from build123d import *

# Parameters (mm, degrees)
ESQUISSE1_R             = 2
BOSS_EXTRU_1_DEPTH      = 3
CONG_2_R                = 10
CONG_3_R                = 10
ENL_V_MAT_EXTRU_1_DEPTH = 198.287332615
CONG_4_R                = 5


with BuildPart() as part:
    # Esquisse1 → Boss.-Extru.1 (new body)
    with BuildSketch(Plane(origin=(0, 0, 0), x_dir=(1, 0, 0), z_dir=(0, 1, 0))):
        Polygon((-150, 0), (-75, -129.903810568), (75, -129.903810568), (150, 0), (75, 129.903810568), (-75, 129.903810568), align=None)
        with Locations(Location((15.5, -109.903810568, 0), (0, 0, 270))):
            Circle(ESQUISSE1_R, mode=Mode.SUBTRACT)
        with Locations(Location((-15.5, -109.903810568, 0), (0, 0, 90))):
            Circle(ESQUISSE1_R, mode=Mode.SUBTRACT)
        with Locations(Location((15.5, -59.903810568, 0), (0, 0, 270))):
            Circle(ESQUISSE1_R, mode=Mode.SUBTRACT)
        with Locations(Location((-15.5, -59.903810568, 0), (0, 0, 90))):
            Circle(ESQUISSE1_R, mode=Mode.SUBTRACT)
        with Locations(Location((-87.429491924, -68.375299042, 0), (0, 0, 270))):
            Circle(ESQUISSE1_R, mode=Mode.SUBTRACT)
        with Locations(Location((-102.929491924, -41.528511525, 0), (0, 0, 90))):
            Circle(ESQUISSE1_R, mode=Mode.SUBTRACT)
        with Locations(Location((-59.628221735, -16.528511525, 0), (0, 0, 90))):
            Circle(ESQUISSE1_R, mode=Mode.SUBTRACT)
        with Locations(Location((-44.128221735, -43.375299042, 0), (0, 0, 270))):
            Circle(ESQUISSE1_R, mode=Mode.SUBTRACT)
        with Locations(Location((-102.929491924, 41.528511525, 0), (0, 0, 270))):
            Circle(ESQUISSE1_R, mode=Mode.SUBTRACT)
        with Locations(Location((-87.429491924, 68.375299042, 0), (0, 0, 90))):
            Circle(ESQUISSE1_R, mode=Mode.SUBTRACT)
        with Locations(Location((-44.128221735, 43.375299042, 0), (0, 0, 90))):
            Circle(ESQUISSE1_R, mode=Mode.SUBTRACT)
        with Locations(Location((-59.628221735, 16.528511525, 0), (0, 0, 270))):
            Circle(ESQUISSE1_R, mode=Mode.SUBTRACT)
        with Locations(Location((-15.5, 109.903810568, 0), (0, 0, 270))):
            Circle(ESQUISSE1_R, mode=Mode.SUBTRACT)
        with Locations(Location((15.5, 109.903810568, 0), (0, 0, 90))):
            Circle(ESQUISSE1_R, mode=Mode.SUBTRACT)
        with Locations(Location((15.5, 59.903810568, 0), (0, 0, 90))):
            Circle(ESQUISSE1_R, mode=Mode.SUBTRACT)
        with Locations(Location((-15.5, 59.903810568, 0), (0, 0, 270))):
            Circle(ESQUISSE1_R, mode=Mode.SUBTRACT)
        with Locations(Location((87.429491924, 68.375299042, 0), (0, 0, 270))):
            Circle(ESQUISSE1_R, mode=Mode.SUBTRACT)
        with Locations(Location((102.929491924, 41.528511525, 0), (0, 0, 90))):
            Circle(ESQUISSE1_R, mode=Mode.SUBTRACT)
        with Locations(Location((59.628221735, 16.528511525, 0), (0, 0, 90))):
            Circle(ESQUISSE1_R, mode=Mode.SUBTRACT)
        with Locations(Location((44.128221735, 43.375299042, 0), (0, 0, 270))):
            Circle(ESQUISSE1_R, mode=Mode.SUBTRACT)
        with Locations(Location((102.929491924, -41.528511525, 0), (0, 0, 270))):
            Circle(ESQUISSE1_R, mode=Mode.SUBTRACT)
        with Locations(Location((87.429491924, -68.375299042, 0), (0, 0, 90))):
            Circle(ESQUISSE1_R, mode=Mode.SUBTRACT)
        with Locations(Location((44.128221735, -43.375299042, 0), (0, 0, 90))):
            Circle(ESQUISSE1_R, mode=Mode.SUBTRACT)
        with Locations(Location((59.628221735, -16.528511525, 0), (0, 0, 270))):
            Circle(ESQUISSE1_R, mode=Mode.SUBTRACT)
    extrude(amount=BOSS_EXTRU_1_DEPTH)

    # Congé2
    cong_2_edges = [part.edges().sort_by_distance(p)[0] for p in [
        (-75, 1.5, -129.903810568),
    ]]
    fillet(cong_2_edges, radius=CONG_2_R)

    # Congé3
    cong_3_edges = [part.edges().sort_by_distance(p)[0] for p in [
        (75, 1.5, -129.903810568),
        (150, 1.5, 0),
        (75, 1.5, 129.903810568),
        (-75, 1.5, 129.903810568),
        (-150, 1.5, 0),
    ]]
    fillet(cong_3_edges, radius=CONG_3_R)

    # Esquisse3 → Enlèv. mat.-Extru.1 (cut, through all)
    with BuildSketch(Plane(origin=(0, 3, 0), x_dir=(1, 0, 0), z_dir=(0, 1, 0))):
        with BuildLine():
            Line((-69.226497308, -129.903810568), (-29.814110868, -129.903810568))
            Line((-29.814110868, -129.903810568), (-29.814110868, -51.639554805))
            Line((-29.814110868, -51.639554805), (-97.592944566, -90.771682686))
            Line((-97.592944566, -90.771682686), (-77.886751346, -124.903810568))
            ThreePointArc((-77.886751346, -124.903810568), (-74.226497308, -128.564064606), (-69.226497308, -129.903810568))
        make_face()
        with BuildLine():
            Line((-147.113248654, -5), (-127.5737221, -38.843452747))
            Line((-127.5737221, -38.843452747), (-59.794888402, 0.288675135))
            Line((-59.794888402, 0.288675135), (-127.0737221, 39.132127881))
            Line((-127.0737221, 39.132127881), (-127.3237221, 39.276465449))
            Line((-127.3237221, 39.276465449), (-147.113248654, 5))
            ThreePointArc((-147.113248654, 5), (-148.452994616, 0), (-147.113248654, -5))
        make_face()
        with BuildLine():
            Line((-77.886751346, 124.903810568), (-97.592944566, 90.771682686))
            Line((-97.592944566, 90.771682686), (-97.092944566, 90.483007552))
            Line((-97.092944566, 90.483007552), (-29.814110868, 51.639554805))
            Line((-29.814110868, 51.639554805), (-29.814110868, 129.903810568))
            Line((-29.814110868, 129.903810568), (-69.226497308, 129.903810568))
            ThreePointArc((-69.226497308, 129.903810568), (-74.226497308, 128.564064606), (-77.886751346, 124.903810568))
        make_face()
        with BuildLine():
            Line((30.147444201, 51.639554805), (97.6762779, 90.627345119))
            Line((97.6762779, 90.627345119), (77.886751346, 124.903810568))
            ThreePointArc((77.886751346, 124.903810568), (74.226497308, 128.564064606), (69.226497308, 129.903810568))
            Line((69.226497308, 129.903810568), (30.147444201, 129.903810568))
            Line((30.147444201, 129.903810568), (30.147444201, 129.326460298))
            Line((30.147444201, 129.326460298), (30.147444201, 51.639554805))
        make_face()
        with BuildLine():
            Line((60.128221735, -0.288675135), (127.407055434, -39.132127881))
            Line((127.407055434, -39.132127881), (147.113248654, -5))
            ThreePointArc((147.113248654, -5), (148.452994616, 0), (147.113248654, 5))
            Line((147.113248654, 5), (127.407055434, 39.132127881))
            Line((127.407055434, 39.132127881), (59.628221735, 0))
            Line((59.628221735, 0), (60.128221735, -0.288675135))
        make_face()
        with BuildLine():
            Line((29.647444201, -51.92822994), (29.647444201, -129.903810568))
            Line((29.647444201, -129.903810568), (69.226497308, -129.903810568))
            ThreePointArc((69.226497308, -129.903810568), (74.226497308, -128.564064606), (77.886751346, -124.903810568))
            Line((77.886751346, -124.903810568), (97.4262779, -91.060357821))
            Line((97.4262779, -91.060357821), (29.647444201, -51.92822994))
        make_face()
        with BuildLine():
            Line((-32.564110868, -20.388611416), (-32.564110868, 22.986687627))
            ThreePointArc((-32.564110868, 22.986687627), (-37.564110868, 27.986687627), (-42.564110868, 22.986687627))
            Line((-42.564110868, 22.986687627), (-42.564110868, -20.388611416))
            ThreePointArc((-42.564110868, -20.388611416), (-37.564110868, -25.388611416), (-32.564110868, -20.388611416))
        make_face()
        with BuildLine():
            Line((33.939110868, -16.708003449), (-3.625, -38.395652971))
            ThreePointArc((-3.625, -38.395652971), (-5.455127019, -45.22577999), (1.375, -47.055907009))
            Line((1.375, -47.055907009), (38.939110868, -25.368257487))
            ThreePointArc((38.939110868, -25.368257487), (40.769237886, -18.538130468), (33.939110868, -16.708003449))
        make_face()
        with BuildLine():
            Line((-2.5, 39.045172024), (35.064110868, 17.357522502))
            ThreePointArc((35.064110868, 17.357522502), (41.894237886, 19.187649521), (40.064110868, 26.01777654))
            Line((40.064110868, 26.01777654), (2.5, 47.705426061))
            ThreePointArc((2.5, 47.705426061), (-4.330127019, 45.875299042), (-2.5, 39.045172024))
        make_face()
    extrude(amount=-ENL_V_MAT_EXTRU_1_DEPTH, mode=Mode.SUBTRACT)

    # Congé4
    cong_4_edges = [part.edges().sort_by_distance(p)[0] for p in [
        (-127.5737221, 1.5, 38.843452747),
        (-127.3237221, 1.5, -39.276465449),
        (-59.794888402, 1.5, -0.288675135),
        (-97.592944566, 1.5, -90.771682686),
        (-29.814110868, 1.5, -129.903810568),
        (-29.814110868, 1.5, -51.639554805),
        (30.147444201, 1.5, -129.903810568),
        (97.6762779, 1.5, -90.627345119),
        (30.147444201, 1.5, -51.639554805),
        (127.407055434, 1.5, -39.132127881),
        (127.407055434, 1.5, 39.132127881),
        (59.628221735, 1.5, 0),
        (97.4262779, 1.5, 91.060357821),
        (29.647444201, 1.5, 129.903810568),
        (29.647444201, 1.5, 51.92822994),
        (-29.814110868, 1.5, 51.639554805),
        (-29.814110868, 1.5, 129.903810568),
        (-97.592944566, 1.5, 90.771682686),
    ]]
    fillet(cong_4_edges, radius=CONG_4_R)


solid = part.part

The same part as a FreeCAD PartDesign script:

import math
import FreeCAD as App
import Part
import Sketcher
from FreeCAD import Vector
Q = App.Units.Quantity


def edges_at(feature, points):
    """Names of the edges that pass closest to the given points."""
    edges = feature.Shape.Edges
    near = lambda p: min(range(len(edges)), key=lambda i: edges[i].distToShape(Part.Vertex(*p))[0])
    return sorted({f"Edge{near(p) + 1}" for p in points})


def add_polygon(sketch, points):
    """Adds a closed chain of lines whose ends are joined by coincident constraints."""
    first, n = sketch.GeometryCount, len(points)
    for a, b in zip(points, points[1:] + points[:1]):
        sketch.addGeometry(Part.LineSegment(App.Vector(*a, 0), App.Vector(*b, 0)), False)
    for i in range(n):
        sketch.addConstraint(Sketcher.Constraint("Coincident", first + i, 2, first + (i + 1) % n, 1))

doc = App.newDocument("Part")
body = doc.addObject("PartDesign::Body", "Body")

sketch1 = doc.addObject("Sketcher::SketchObject", "Sketch")
body.addObject(sketch1)
sketch1.AttachmentSupport = (doc.XZ_Plane, [""])
sketch1.MapMode = "FlatFace"
add_polygon(sketch1, [(-150, 0), (-75, 129.9), (75, 129.9), (150, 0), (75, -129.9), (-75, -129.9)])
sketch1.addGeometry(Part.Circle(Vector(-87.4, 68.4, 0), Vector(0, 0, 1), 2), False)
sketch1.addGeometry(Part.Circle(Vector(-15.5, 109.9, 0), Vector(0, 0, 1), 2), False)
sketch1.addGeometry(Part.Circle(Vector(-15.5, 59.9, 0), Vector(0, 0, 1), 2), False)
sketch1.addGeometry(Part.Circle(Vector(-102.9, 41.5, 0), Vector(0, 0, 1), 2), False)
sketch1.addGeometry(Part.Circle(Vector(-59.6, 16.5, 0), Vector(0, 0, 1), 2), False)
sketch1.addGeometry(Part.Circle(Vector(-44.1, 43.4, 0), Vector(0, 0, 1), 2), False)
sketch1.addGeometry(Part.Circle(Vector(15.5, 109.9, 0), Vector(0, 0, 1), 2), False)
sketch1.addGeometry(Part.Circle(Vector(15.5, 59.9, 0), Vector(0, 0, 1), 2), False)
sketch1.addGeometry(Part.Circle(Vector(87.4, 68.4, 0), Vector(0, 0, 1), 2), False)
sketch1.addGeometry(Part.Circle(Vector(44.1, 43.4, 0), Vector(0, 0, 1), 2), False)
sketch1.addGeometry(Part.Circle(Vector(102.9, 41.5, 0), Vector(0, 0, 1), 2), False)
sketch1.addGeometry(Part.Circle(Vector(59.6, 16.5, 0), Vector(0, 0, 1), 2), False)
sketch1.addGeometry(Part.Circle(Vector(-59.6, -16.5, 0), Vector(0, 0, 1), 2), False)
sketch1.addGeometry(Part.Circle(Vector(-102.9, -41.5, 0), Vector(0, 0, 1), 2), False)
sketch1.addGeometry(Part.Circle(Vector(-44.1, -43.4, 0), Vector(0, 0, 1), 2), False)
sketch1.addGeometry(Part.Circle(Vector(-87.4, -68.4, 0), Vector(0, 0, 1), 2), False)
sketch1.addGeometry(Part.Circle(Vector(-15.5, -59.9, 0), Vector(0, 0, 1), 2), False)
sketch1.addGeometry(Part.Circle(Vector(-15.5, -109.9, 0), Vector(0, 0, 1), 2), False)
sketch1.addGeometry(Part.Circle(Vector(44.1, -43.4, 0), Vector(0, 0, 1), 2), False)
sketch1.addGeometry(Part.Circle(Vector(59.6, -16.5, 0), Vector(0, 0, 1), 2), False)
sketch1.addGeometry(Part.Circle(Vector(102.9, -41.5, 0), Vector(0, 0, 1), 2), False)
sketch1.addGeometry(Part.Circle(Vector(15.5, -59.9, 0), Vector(0, 0, 1), 2), False)
sketch1.addGeometry(Part.Circle(Vector(15.5, -109.9, 0), Vector(0, 0, 1), 2), False)
sketch1.addGeometry(Part.Circle(Vector(87.4, -68.4, 0), Vector(0, 0, 1), 2), False)
sketch1.addConstraint([
    Sketcher.Constraint("Horizontal", 1),
    Sketcher.Constraint("Horizontal", 4),
    Sketcher.Constraint("Equal", 6, 7),
    Sketcher.Constraint("Equal", 7, 8),
    Sketcher.Constraint("Equal", 8, 9),
    Sketcher.Constraint("Equal", 9, 10),
    Sketcher.Constraint("Equal", 10, 11),
    Sketcher.Constraint("Equal", 11, 12),
    Sketcher.Constraint("Equal", 12, 13),
    Sketcher.Constraint("Equal", 13, 14),
    Sketcher.Constraint("Equal", 14, 15),
    Sketcher.Constraint("Equal", 15, 16),
    Sketcher.Constraint("Equal", 16, 17),
    Sketcher.Constraint("Equal", 17, 18),
    Sketcher.Constraint("Equal", 18, 19),
    Sketcher.Constraint("Equal", 19, 20),
    Sketcher.Constraint("Equal", 20, 21),
    Sketcher.Constraint("Equal", 21, 22),
    Sketcher.Constraint("Equal", 22, 23),
    Sketcher.Constraint("Equal", 23, 24),
    Sketcher.Constraint("Equal", 24, 25),
    Sketcher.Constraint("Equal", 25, 26),
    Sketcher.Constraint("Equal", 26, 27),
    Sketcher.Constraint("Equal", 27, 28),
    Sketcher.Constraint("Equal", 28, 29),
    Sketcher.Constraint("Symmetric", 17, 3, 18, 3, -1, 1),
    Sketcher.Constraint("Symmetric", 16, 3, 19, 3, -1, 1),
    Sketcher.Constraint("Symmetric", 15, 3, 20, 3, -1, 1),
    Sketcher.Constraint("Symmetric", 14, 3, 21, 3, -1, 1),
    Sketcher.Constraint("Symmetric", 13, 3, 22, 3, -1, 1),
    Sketcher.Constraint("Symmetric", 12, 3, 23, 3, -1, 1),
    Sketcher.Constraint("Symmetric", 11, 3, 24, 3, -1, 1),
    Sketcher.Constraint("Symmetric", 10, 3, 25, 3, -1, 1),
    Sketcher.Constraint("Symmetric", 9, 3, 26, 3, -1, 1),
    Sketcher.Constraint("Symmetric", 8, 3, 27, 3, -1, 1),
    Sketcher.Constraint("Symmetric", 7, 3, 28, 3, -1, 1),
    Sketcher.Constraint("Symmetric", 6, 3, 29, 3, -1, 1),
    Sketcher.Constraint("Symmetric", 0, 2, 3, 2, -1, 1),
    Sketcher.Constraint("Symmetric", 2, 2, 5, 2, -1, 1),
    Sketcher.Constraint("Symmetric", 7, 3, 12, 3, -2),
    Sketcher.Constraint("Symmetric", 8, 3, 13, 3, -2),
    Sketcher.Constraint("Symmetric", 6, 3, 14, 3, -2),
    Sketcher.Constraint("Symmetric", 11, 3, 15, 3, -2),
    Sketcher.Constraint("Symmetric", 9, 3, 16, 3, -2),
    Sketcher.Constraint("Symmetric", 10, 3, 17, 3, -2),
    Sketcher.Constraint("PointOnObject", 2, 2, -1),
    Sketcher.Constraint("Parallel", 2, 5),
    Sketcher.Constraint("Vertical", 7, 3, 8, 3),
    Sketcher.Constraint("Vertical", 1, 2, 3, 2),
    Sketcher.Constraint("Diameter", 6, 4.0),
    Sketcher.Constraint("DistanceX", 1, 1, 1, 2, 150.0),
    Sketcher.Constraint("Angle", 0, Q("60 deg")),
    Sketcher.Constraint("Distance", 0, 150.0),
    Sketcher.Constraint("DistanceY", 8, 3, 7, 3, 50.0),
    Sketcher.Constraint("DistanceY", 10, 3, 9, 3, 25.0),
    Sketcher.Constraint("DistanceY", 11, 3, 6, 3, 25.0),
    Sketcher.Constraint("DistanceX", 7, 3, 12, 3, 31.0),
    Sketcher.Constraint("DistanceY", 7, 3, 0, 2, 20.0),
    Sketcher.Constraint("DistanceX", 9, 3, 6, 3, 15.5),
    Sketcher.Constraint("DistanceX", 10, 3, 11, 3, 15.5),
    Sketcher.Constraint("DistanceY", -1, 1, 6, 3, 68.375299),
    Sketcher.Constraint("DistanceY", 9, 3, 8, 3, 18.375299),
    Sketcher.Constraint("DistanceX", 6, 3, -1, 1, 87.429492),
    Sketcher.Constraint("DistanceX", 10, 3, -1, 1, 59.628222),
])
pad1 = doc.addObject("PartDesign::Pad", "Pad")
body.addObject(pad1)
pad1.Profile = sketch1
pad1.Length = 3
pad1.Reversed = True
doc.recompute()

fillet = doc.addObject("PartDesign::Fillet", "Fillet")
body.addObject(fillet)
fillet.Base = (pad1, edges_at(pad1, [(-75, 1.5, -129.904)]))
fillet.Radius = 10
doc.recompute()

fillet2 = doc.addObject("PartDesign::Fillet", "Fillet001")
body.addObject(fillet2)
fillet2.Base = (fillet, edges_at(fillet, [
    (75, 1.5, -129.904),
    (150, 1.5, 0),
    (75, 1.5, 129.904),
    (-75, 1.5, 129.904),
    (-150, 1.5, 0),
]))
fillet2.Radius = 10

sketch2 = doc.addObject("Sketcher::SketchObject", "Sketch001")
body.addObject(sketch2)
sketch2.AttachmentSupport = (doc.XZ_Plane, [""])
sketch2.MapMode = "FlatFace"
sketch2.AttachmentOffset = App.Placement(Vector(0, 0, -3), App.Rotation())
sketch2.addGeometry([
    Part.LineSegment(Vector(-69.23, 129.9, 0), Vector(-29.81, 129.9, 0)),
    Part.LineSegment(Vector(-29.81, 129.9, 0), Vector(-29.81, 51.64, 0)),
    Part.LineSegment(Vector(-29.81, 51.64, 0), Vector(-97.59, 90.77, 0)),
    Part.LineSegment(Vector(-97.59, 90.77, 0), Vector(-77.89, 124.9, 0)),
    Part.ArcOfCircle(Part.Circle(Vector(-69.23, 119.9, 0), Vector(0, 0, 1), 10), math.radians(90), math.radians(150)),
    Part.LineSegment(Vector(-147.11, 5, 0), Vector(-127.57, 38.84, 0)),
    Part.LineSegment(Vector(-127.57, 38.84, 0), Vector(-59.79, -0.29, 0)),
    Part.LineSegment(Vector(-59.79, -0.29, 0), Vector(-127.07, -39.13, 0)),
    Part.LineSegment(Vector(-127.07, -39.13, 0), Vector(-127.32, -39.28, 0)),
    Part.LineSegment(Vector(-127.32, -39.28, 0), Vector(-147.11, -5, 0)),
    Part.ArcOfCircle(Part.Circle(Vector(-138.45, 0, 0), Vector(0, 0, 1), 10), math.radians(150), math.radians(210)),
    Part.LineSegment(Vector(-77.89, -124.9, 0), Vector(-97.59, -90.77, 0)),
    Part.LineSegment(Vector(-97.59, -90.77, 0), Vector(-97.09, -90.48, 0)),
    Part.LineSegment(Vector(-97.09, -90.48, 0), Vector(-29.81, -51.64, 0)),
    Part.LineSegment(Vector(-29.81, -51.64, 0), Vector(-29.81, -129.9, 0)),
    Part.LineSegment(Vector(-29.81, -129.9, 0), Vector(-69.23, -129.9, 0)),
    Part.ArcOfCircle(Part.Circle(Vector(-69.23, -119.9, 0), Vector(0, 0, 1), 10), math.radians(-150), math.radians(-90)),
    Part.LineSegment(Vector(30.15, -51.64, 0), Vector(97.68, -90.63, 0)),
    Part.LineSegment(Vector(97.68, -90.63, 0), Vector(77.89, -124.9, 0)),
    Part.ArcOfCircle(Part.Circle(Vector(69.23, -119.9, 0), Vector(0, 0, 1), 10), math.radians(-90), math.radians(-30)),
    Part.LineSegment(Vector(69.23, -129.9, 0), Vector(30.15, -129.9, 0)),
    Part.LineSegment(Vector(30.15, -129.9, 0), Vector(30.15, -51.64, 0)),
    Part.LineSegment(Vector(60.13, 0.29, 0), Vector(127.41, 39.13, 0)),
    Part.LineSegment(Vector(127.41, 39.13, 0), Vector(147.11, 5, 0)),
    Part.ArcOfCircle(Part.Circle(Vector(138.45, 0, 0), Vector(0, 0, 1), 10), math.radians(-30), math.radians(30)),
    Part.LineSegment(Vector(147.11, -5, 0), Vector(127.41, -39.13, 0)),
    Part.LineSegment(Vector(127.41, -39.13, 0), Vector(59.63, 0, 0)),
    Part.LineSegment(Vector(59.63, 0, 0), Vector(60.13, 0.29, 0)),
    Part.LineSegment(Vector(29.65, 51.93, 0), Vector(29.65, 129.9, 0)),
    Part.LineSegment(Vector(29.65, 129.9, 0), Vector(69.23, 129.9, 0)),
    Part.ArcOfCircle(Part.Circle(Vector(69.23, 119.9, 0), Vector(0, 0, 1), 10), math.radians(30), math.radians(90)),
    Part.LineSegment(Vector(77.89, 124.9, 0), Vector(97.43, 91.06, 0)),
    Part.LineSegment(Vector(97.43, 91.06, 0), Vector(29.65, 51.93, 0)),
    Part.LineSegment(Vector(-32.56, 20.39, 0), Vector(-32.56, -22.99, 0)),
    Part.ArcOfCircle(Part.Circle(Vector(-37.56, -22.99, 0), Vector(0, 0, 1), 5), math.radians(180), math.radians(360)),
    Part.LineSegment(Vector(-42.56, -22.99, 0), Vector(-42.56, 20.39, 0)),
    Part.ArcOfCircle(Part.Circle(Vector(-37.56, 20.39, 0), Vector(0, 0, 1), 5), math.radians(0), math.radians(180)),
    Part.LineSegment(Vector(33.94, 16.71, 0), Vector(-3.62, 38.4, 0)),
    Part.ArcOfCircle(Part.Circle(Vector(-1.12, 42.73, 0), Vector(0, 0, 1), 5), math.radians(60), math.radians(240)),
    Part.LineSegment(Vector(1.38, 47.06, 0), Vector(38.94, 25.37, 0)),
    Part.ArcOfCircle(Part.Circle(Vector(36.44, 21.04, 0), Vector(0, 0, 1), 5), math.radians(-120), math.radians(60)),
    Part.LineSegment(Vector(-2.5, -39.05, 0), Vector(35.06, -17.36, 0)),
    Part.ArcOfCircle(Part.Circle(Vector(37.56, -21.69, 0), Vector(0, 0, 1), 5), math.radians(-60), math.radians(120)),
    Part.LineSegment(Vector(40.06, -26.02, 0), Vector(2.5, -47.71, 0)),
    Part.ArcOfCircle(Part.Circle(Vector(0, -43.38, 0), Vector(0, 0, 1), 5), math.radians(120), math.radians(300)),
], False)
sketch2.addConstraint([
    Sketcher.Constraint("Coincident", 0, 2, 1, 1),
    Sketcher.Constraint("Coincident", 1, 2, 2, 1),
    Sketcher.Constraint("Coincident", 2, 2, 3, 1),
    Sketcher.Constraint("Tangent", 3, 2, 4, 2),
    Sketcher.Constraint("Tangent", 4, 1, 0, 1),
    Sketcher.Constraint("Coincident", 5, 2, 6, 1),
    Sketcher.Constraint("Coincident", 6, 2, 7, 1),
    Sketcher.Constraint("Coincident", 7, 2, 8, 1),
    Sketcher.Constraint("Coincident", 8, 2, 9, 1),
    Sketcher.Constraint("Tangent", 9, 2, 10, 2),
    Sketcher.Constraint("Tangent", 10, 1, 5, 1),
    Sketcher.Constraint("Coincident", 11, 2, 12, 1),
    Sketcher.Constraint("Coincident", 12, 2, 13, 1),
    Sketcher.Constraint("Coincident", 13, 2, 14, 1),
    Sketcher.Constraint("Coincident", 14, 2, 15, 1),
    Sketcher.Constraint("Tangent", 15, 2, 16, 2),
    Sketcher.Constraint("Tangent", 16, 1, 11, 1),
    Sketcher.Constraint("Coincident", 17, 2, 18, 1),
    Sketcher.Constraint("Tangent", 18, 2, 19, 2),
    Sketcher.Constraint("Tangent", 19, 1, 20, 1),
    Sketcher.Constraint("Coincident", 20, 2, 21, 1),
    Sketcher.Constraint("Coincident", 21, 2, 17, 1),
    Sketcher.Constraint("Coincident", 22, 2, 23, 1),
    Sketcher.Constraint("Tangent", 23, 2, 24, 2),
    Sketcher.Constraint("Tangent", 24, 1, 25, 1),
    Sketcher.Constraint("Coincident", 25, 2, 26, 1),
    Sketcher.Constraint("Coincident", 26, 2, 27, 1),
    Sketcher.Constraint("Coincident", 27, 2, 22, 1),
    Sketcher.Constraint("Coincident", 28, 2, 29, 1),
    Sketcher.Constraint("Tangent", 29, 2, 30, 2),
    Sketcher.Constraint("Tangent", 30, 1, 31, 1),
    Sketcher.Constraint("Coincident", 31, 2, 32, 1),
    Sketcher.Constraint("Coincident", 32, 2, 28, 1),
    Sketcher.Constraint("Tangent", 33, 2, 34, 2),
    Sketcher.Constraint("Tangent", 34, 1, 35, 1),
    Sketcher.Constraint("Tangent", 35, 2, 36, 2),
    Sketcher.Constraint("Tangent", 36, 1, 33, 1),
    Sketcher.Constraint("Tangent", 37, 2, 38, 2),
    Sketcher.Constraint("Tangent", 38, 1, 39, 1),
    Sketcher.Constraint("Tangent", 39, 2, 40, 2),
    Sketcher.Constraint("Tangent", 40, 1, 37, 1),
    Sketcher.Constraint("Tangent", 41, 2, 42, 2),
    Sketcher.Constraint("Tangent", 42, 1, 43, 1),
    Sketcher.Constraint("Tangent", 43, 2, 44, 2),
    Sketcher.Constraint("Tangent", 44, 1, 41, 1),
    Sketcher.Constraint("Horizontal", 0),
    Sketcher.Constraint("Vertical", 1),
    Sketcher.Constraint("Vertical", 14),
    Sketcher.Constraint("Horizontal", 15),
    Sketcher.Constraint("Horizontal", 20),
    Sketcher.Constraint("Vertical", 21),
    Sketcher.Constraint("Vertical", 28),
    Sketcher.Constraint("Horizontal", 29),
    Sketcher.Constraint("Vertical", 33),
    Sketcher.Constraint("Vertical", 35),
    Sketcher.Constraint("Equal", 4, 10),
    Sketcher.Constraint("Equal", 10, 16),
    Sketcher.Constraint("Equal", 16, 19),
    Sketcher.Constraint("Equal", 19, 24),
    Sketcher.Constraint("Equal", 24, 30),
    Sketcher.Constraint("Equal", 36, 38),
    Sketcher.Constraint("Equal", 38, 40),
    Sketcher.Constraint("Equal", 40, 42),
    Sketcher.Constraint("Equal", 42, 44),
    Sketcher.Constraint("Symmetric", 4, 3, 19, 3, -1, 1),
    Sketcher.Constraint("Symmetric", 10, 3, 24, 3, -1, 1),
    Sketcher.Constraint("Symmetric", 16, 3, 30, 3, -1, 1),
    Sketcher.Constraint("Symmetric", 16, 3, 19, 3, -2),
    Sketcher.Constraint("Symmetric", 10, 1, 23, 2, -2),
    Sketcher.Constraint("Symmetric", 2, 2, 11, 2, -1),
    Sketcher.Constraint("Symmetric", 1, 2, 13, 2, -1),
    Sketcher.Constraint("Symmetric", 22, 2, 25, 2, -1),
    Sketcher.Constraint("PointOnObject", 44, 3, -2),
    Sketcher.Constraint("PointOnObject", 26, 2, -1),
    Sketcher.Constraint("Perpendicular", 2, 3),
    Sketcher.Constraint("Parallel", 3, 5),
    Sketcher.Constraint("Perpendicular", 5, 6),
    Sketcher.Constraint("Parallel", 7, 8),
    Sketcher.Constraint("Perpendicular", 8, 9),
    Sketcher.Constraint("Parallel", 9, 11),
    Sketcher.Constraint("Perpendicular", 11, 12),
    Sketcher.Constraint("Parallel", 6, 17),
    Sketcher.Constraint("Perpendicular", 17, 18),
    Sketcher.Constraint("Parallel", 13, 22),
    Sketcher.Constraint("Perpendicular", 25, 26),
    Sketcher.Constraint("Perpendicular", 27, 31),
    Sketcher.Constraint("Perpendicular", 31, 32),
    Sketcher.Constraint("Parallel", 26, 37),
    Sketcher.Constraint("Parallel", 32, 41),
    Sketcher.Constraint("Horizontal", 13, 2, 21, 2),
    Sketcher.Constraint("Horizontal", 7, 2, 25, 2),
    Sketcher.Constraint("Equal", 2, 6),
    Sketcher.Constraint("Equal", 7, 13),
    Sketcher.Constraint("Equal", 9, 18),
    Sketcher.Constraint("Equal", 13, 22),
    Sketcher.Constraint("Equal", 11, 23),
    Sketcher.Constraint("Equal", 6, 26),
    Sketcher.Constraint("Equal", 5, 31),
    Sketcher.Constraint("Equal", 26, 32),
    Sketcher.Constraint("Equal", 39, 41),
    Sketcher.Constraint("Radius", 4, 10.0),
    Sketcher.Constraint("Radius", 34, 5.0),
    Sketcher.Constraint("Angle", 2, Q("150 deg")),
    Sketcher.Constraint("DistanceX", 5, 2, 7, 2, 0.5),
    Sketcher.Constraint("DistanceX", 36, 3, 0, 2, 7.75),
    Sketcher.Constraint("DistanceY", 33, 2, 33, 1, 43.375299),
    Sketcher.Constraint("DistanceX", 38, 3, -1, 1, 1.125),
    Sketcher.Constraint("Distance", 37, 43.375299),
    Sketcher.Constraint("DistanceY", 28, 1, 28, 2, 77.975581),
    Sketcher.Constraint("DistanceY", 44, 3, -1, 1, 43.375299),
    Sketcher.Constraint("DistanceY", 34, 3, 4, 3, 142.890498),
    Sketcher.Constraint("DistanceY", 40, 3, 32, 2, 30.890099),
    Sketcher.Constraint("DistanceY", -1, 1, 4, 3, 119.903811),
    Sketcher.Constraint("DistanceX", 34, 3, -1, 1, 37.564111),
    Sketcher.Constraint("DistanceX", 6, 2, -1, 1, 59.794888),
])
pocket1 = doc.addObject("PartDesign::Pocket", "Pocket")
body.addObject(pocket1)
pocket1.Profile = sketch2
pocket1.Type = "ThroughAll"
pocket1.Reversed = True
doc.recompute()

fillet3 = doc.addObject("PartDesign::Fillet", "Fillet002")
body.addObject(fillet3)
fillet3.Base = (pocket1, edges_at(pocket1, [
    (-127.574, 1.5, 38.843),
    (-127.324, 1.5, -39.276),
    (-59.795, 1.5, -0.289),
    (-97.593, 1.5, -90.772),
    (-29.814, 1.5, -129.904),
    (-29.814, 1.5, -51.64),
    (30.147, 1.5, -129.904),
    (97.676, 1.5, -90.627),
    (30.147, 1.5, -51.64),
    (127.407, 1.5, -39.132),
    (127.407, 1.5, 39.132),
    (59.628, 1.5, 0),
    (97.426, 1.5, 91.06),
    (29.647, 1.5, 129.904),
    (29.647, 1.5, 51.928),
    (-29.814, 1.5, 51.64),
    (-29.814, 1.5, 129.904),
    (-97.593, 1.5, 90.772),
]))
fillet3.Radius = 5

doc.recompute()
